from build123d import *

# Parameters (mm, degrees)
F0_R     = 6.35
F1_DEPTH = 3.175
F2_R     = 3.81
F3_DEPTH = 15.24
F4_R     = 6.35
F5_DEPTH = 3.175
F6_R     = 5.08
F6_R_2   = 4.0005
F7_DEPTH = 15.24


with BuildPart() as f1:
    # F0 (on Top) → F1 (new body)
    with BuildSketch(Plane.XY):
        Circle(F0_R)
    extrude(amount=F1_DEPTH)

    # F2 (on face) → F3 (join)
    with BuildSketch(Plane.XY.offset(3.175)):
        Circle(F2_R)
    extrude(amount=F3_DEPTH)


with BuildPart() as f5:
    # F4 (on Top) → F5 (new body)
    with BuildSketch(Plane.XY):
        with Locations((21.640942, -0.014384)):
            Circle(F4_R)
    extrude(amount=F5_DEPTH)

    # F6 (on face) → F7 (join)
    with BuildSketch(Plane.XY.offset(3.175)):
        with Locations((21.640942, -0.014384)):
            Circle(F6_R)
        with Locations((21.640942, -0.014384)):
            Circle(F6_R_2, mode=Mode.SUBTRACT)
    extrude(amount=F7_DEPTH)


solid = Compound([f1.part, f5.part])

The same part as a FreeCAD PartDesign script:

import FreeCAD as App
import Part
import Sketcher

V = App.Vector
Q = App.Units.Quantity

doc = App.newDocument("Part")
body = doc.addObject("PartDesign::Body", "Body")

# Sketch on XY plane
sketch1 = body.newObject("Sketcher::SketchObject", "Sketch")
sketch1.AttachmentSupport = (doc.getObject("XY_Plane"), [""])
sketch1.MapMode = "FlatFace"
sketch1.addGeometry(Part.Circle(V(0, 0, 0), V(0, 0, 1), 6), False)
sketch1.addConstraint(Sketcher.Constraint("Coincident", 0, 3, -1, 1))
sketch1.addConstraint(Sketcher.Constraint("Diameter", 0, Q("0.5 in")))
pad1 = body.newObject("PartDesign::Pad", "Pad")
pad1.Profile = sketch1
pad1.Length = Q("0.125 in")

# Sketch on XY plane
sketch2 = body.newObject("Sketcher::SketchObject", "Sketch001")
sketch2.AttachmentSupport = (doc.getObject("XY_Plane"), [""])
sketch2.MapMode = "FlatFace"
sketch2.AttachmentOffset = App.Placement(V(0, 0, 0.125 * 25.4), App.Rotation())
sketch2.addGeometry(Part.Circle(V(0, 0, 0), V(0, 0, 1), 3.8), False)
sketch2.addConstraint(Sketcher.Constraint("Coincident", 0, 3, -1, 1))
sketch2.addConstraint(Sketcher.Constraint("Diameter", 0, Q("0.3 in")))
pad2 = body.newObject("PartDesign::Pad", "Pad001")
pad2.Profile = sketch2
pad2.Length = Q("0.6 in")
body2 = doc.addObject("PartDesign::Body", "Body001")

# Sketch on XY plane
sketch3 = body2.newObject("Sketcher::SketchObject", "Sketch002")
sketch3.AttachmentSupport = (doc.getObject("XY_Plane001"), [""])
sketch3.MapMode = "FlatFace"
sketch3.addGeometry(Part.Circle(V(22, 0, 0), V(0, 0, 1), 6), False)
sketch3.addConstraint(Sketcher.Constraint("Diameter", 0, Q("0.5 in")))
sketch3.addConstraint(Sketcher.Constraint("DistanceX", -1, 1, 0, 3, 21.640942))
sketch3.addConstraint(Sketcher.Constraint("DistanceY", 0, 3, -1, 1, 0.014384))
pad3 = body2.newObject("PartDesign::Pad", "Pad002")
pad3.Profile = sketch3
pad3.Length = Q("0.125 in")

# Sketch on XY plane
sketch4 = body2.newObject("Sketcher::SketchObject", "Sketch003")
sketch4.AttachmentSupport = (doc.getObject("XY_Plane001"), [""])
sketch4.MapMode = "FlatFace"
sketch4.AttachmentOffset = App.Placement(V(0, 0, 0.125 * 25.4), App.Rotation())
sketch4.addGeometry(Part.Circle(V(21.6, 0, 0), V(0, 0, 1), 5.1), False)
sketch4.addGeometry(Part.Circle(V(21.6, 0, 0), V(0, 0, 1), 4), False)
sketch4.addConstraint(Sketcher.Constraint("Coincident", 1, 3, 0, 3))
sketch4.addConstraint(Sketcher.Constraint("Diameter", 0, Q("0.4 in")))
sketch4.addConstraint(Sketcher.Constraint("Diameter", 1, Q("0.315 in")))
sketch4.addConstraint(Sketcher.Constraint("DistanceX", -1, 1, 0, 3, 21.640942))
sketch4.addConstraint(Sketcher.Constraint("DistanceY", 0, 3, -1, 1, 0.014384))
pad4 = body2.newObject("PartDesign::Pad", "Pad003")
pad4.Profile = sketch4
pad4.Length = Q("0.6 in")

doc.recompute()
